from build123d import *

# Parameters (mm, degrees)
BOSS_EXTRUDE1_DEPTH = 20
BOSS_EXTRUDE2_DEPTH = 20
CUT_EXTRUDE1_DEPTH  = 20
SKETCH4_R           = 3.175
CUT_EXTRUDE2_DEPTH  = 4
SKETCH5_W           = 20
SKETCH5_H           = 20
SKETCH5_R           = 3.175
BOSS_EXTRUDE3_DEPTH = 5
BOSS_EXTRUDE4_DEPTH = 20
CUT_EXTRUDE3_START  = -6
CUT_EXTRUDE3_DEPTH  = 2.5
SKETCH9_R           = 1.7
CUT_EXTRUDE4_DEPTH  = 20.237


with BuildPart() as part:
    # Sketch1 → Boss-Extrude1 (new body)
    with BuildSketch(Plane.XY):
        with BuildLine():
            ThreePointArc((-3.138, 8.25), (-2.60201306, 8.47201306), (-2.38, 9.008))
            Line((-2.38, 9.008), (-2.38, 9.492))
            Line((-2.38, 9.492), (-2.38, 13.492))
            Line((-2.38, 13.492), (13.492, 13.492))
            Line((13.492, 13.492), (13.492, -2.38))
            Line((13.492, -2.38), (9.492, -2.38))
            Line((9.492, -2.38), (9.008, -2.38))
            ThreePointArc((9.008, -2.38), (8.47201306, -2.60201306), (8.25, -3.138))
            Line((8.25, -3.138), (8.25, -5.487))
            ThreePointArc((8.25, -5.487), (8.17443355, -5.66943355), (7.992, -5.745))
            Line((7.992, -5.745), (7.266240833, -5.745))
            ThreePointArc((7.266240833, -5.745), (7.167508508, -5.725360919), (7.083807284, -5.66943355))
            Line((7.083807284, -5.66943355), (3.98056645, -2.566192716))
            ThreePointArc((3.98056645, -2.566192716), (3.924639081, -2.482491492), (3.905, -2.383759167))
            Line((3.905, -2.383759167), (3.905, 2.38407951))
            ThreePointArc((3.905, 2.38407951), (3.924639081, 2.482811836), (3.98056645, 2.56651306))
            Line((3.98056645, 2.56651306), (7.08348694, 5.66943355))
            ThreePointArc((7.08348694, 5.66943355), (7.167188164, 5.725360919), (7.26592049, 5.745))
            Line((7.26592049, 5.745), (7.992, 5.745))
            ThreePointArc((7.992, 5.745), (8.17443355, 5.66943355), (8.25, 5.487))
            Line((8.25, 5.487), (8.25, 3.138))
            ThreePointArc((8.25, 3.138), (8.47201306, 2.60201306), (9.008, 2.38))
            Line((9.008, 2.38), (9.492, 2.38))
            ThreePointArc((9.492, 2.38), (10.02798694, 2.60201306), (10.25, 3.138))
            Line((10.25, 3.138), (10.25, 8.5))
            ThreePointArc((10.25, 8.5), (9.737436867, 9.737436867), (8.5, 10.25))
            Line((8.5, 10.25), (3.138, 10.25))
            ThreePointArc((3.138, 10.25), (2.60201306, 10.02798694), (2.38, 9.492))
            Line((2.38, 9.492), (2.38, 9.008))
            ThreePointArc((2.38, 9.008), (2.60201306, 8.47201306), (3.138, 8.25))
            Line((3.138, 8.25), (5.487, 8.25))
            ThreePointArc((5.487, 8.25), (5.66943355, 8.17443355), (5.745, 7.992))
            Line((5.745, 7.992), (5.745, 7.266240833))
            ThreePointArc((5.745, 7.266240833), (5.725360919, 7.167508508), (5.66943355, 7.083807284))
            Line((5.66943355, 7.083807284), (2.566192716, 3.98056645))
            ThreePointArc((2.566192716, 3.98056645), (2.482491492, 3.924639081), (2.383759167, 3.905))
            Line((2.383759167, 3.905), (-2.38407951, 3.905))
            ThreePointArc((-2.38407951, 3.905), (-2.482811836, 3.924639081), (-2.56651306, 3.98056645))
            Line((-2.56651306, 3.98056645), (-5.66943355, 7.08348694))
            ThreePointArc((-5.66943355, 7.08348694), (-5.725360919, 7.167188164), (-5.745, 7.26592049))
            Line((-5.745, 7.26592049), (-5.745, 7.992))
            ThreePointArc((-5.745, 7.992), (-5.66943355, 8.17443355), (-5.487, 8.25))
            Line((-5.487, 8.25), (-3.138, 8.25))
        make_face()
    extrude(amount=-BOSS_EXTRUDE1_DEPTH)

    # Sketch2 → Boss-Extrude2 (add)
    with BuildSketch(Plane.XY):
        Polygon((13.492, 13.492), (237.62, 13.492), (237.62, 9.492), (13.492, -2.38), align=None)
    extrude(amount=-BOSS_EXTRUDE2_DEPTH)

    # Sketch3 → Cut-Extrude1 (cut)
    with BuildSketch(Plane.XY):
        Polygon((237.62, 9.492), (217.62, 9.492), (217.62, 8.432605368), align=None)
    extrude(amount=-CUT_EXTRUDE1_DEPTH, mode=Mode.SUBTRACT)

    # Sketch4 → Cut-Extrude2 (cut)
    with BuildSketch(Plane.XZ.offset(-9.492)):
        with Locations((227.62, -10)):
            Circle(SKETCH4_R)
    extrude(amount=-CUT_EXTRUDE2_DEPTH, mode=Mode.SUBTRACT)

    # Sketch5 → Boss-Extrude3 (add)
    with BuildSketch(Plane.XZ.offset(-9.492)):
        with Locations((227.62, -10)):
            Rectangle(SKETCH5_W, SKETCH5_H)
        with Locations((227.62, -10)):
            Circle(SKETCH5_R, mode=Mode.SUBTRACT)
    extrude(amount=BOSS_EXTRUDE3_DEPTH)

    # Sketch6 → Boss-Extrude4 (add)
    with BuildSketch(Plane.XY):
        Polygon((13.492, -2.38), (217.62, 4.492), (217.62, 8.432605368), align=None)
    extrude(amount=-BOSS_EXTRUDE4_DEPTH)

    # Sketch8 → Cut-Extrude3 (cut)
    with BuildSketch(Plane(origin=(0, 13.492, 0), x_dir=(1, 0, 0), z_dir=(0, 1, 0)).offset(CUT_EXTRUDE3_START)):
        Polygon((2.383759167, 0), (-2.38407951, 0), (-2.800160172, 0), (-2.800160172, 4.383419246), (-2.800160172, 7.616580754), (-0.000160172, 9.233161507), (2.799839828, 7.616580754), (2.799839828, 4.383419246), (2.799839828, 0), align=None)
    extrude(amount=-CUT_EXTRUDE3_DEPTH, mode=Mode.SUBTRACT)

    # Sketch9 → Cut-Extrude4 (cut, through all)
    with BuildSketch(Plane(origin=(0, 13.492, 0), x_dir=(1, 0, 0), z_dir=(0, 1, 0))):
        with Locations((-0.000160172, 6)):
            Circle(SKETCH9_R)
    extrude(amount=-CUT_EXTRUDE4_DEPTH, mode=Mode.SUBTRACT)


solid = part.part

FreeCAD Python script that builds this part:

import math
import FreeCAD as App
import Part
import Sketcher
Q = App.Units.Quantity


def add_polygon(sketch, points):
    """Adds a closed chain of lines whose ends are joined by coincident constraints."""
    first, n = sketch.GeometryCount, len(points)
    for a, b in zip(points, points[1:] + points[:1]):
        sketch.addGeometry(Part.LineSegment(App.Vector(*a, 0), App.Vector(*b, 0)), False)
    for i in range(n):
        sketch.addConstraint(Sketcher.Constraint("Coincident", first + i, 2, first + (i + 1) % n, 1))

doc = App.newDocument("Part")
params = doc.addObject("Spreadsheet::Sheet", "Params")
for row, (alias, value) in enumerate([
    ("sketch1_radius", "1.75 mm"),
    ("pad1_length", "20 mm"),
    ("sketch2_height", "4 mm"),
    ("pad2_length", "20 mm"),
    ("sketch3_width", "20 mm"),
    ("pocket1_length", "20 mm"),
    ("sketch4_diameter", "6.35 mm"),
    ("pocket2_length", "4 mm"),
    ("sketch5_diameter", "6.35 mm"),
    ("sketch5_width", "20 mm"),
    ("pad3_length", "5 mm"),
    ("pad4_length", "20 mm"),
    ("sketch7_width", "5.6 mm"),
    ("pocket3_length", "2.5 mm"),
    ("sketch8_diameter", "3.4 mm"),
], start=1):
    params.set(f"A{row}", alias)
    params.set(f"B{row}", "=" + value)
    params.setAlias(f"B{row}", alias)

body = doc.addObject("PartDesign::Body", "Body")

sketch1 = body.newObject("Sketcher::SketchObject", "Sketch")
sketch1.AttachmentSupport = (doc.getObject("XY_Plane"), [""])
sketch1.MapMode = "FlatFace"
sketch1.addGeometry(Part.ArcOfCircle(Part.Circle(App.Vector(-3.138, 9.008, 0), App.Vector(0, 0, 1), 0.758), math.radians(-90), math.radians(0)), False)
sketch1.addGeometry(Part.LineSegment(App.Vector(-3.138, 8.25, 0), App.Vector(-5.487, 8.25, 0)), False)
sketch1.addGeometry(Part.ArcOfCircle(Part.Circle(App.Vector(-5.487, 7.992, 0), App.Vector(0, 0, 1), 0.258), math.radians(90), math.radians(180)), False)
sketch1.addGeometry(Part.LineSegment(App.Vector(-5.745, 7.992, 0), App.Vector(-5.745, 7.26592, 0)), False)
sketch1.addGeometry(Part.ArcOfCircle(Part.Circle(App.Vector(-5.487, 7.26592, 0), App.Vector(0, 0, 1), 0.258), math.radians(-180), math.radians(-135.000001)), False)
sketch1.addGeometry(Part.LineSegment(App.Vector(-5.669434, 7.083487, 0), App.Vector(-2.566513, 3.980566, 0)), False)
sketch1.addGeometry(Part.ArcOfCircle(Part.Circle(App.Vector(-2.38408, 4.163, 0), App.Vector(0, 0, 1), 0.258), math.radians(-134.999999), math.radians(-90)), False)
sketch1.addGeometry(Part.LineSegment(App.Vector(-2.38408, 3.905, 0), App.Vector(2.383759, 3.905, 0)), False)
sketch1.addGeometry(Part.ArcOfCircle(Part.Circle(App.Vector(2.383759, 4.163, 0), App.Vector(0, 0, 1), 0.258), math.radians(-89.999999), math.radians(-45.000001)), False)
sketch1.addGeometry(Part.LineSegment(App.Vector(2.566193, 3.980566, 0), App.Vector(5.669434, 7.083807, 0)), False)
sketch1.addGeometry(Part.ArcOfCircle(Part.Circle(App.Vector(5.487, 7.266241, 0), App.Vector(0, 0, 1), 0.258), math.radians(-44.999999), math.radians(-0.000001)), False)
sketch1.addGeometry(Part.LineSegment(App.Vector(5.745, 7.266241, 0), App.Vector(5.745, 7.992, 0)), False)
sketch1.addGeometry(Part.ArcOfCircle(Part.Circle(App.Vector(5.487, 7.992, 0), App.Vector(0, 0, 1), 0.258), math.radians(0), math.radians(90)), False)
sketch1.addGeometry(Part.LineSegment(App.Vector(5.487, 8.25, 0), App.Vector(3.138, 8.25, 0)), False)
sketch1.addGeometry(Part.ArcOfCircle(Part.Circle(App.Vector(3.138, 9.008, 0), App.Vector(0, 0, 1), 0.758), math.radians(180), math.radians(270)), False)
sketch1.addGeometry(Part.LineSegment(App.Vector(2.38, 9.008, 0), App.Vector(2.38, 9.492, 0)), False)
sketch1.addGeometry(Part.ArcOfCircle(Part.Circle(App.Vector(3.138, 9.492, 0), App.Vector(0, 0, 1), 0.758), math.radians(90), math.radians(180)), False)
sketch1.addGeometry(Part.LineSegment(App.Vector(3.138, 10.25, 0), App.Vector(8.5, 10.25, 0)), False)
sketch1.addGeometry(Part.ArcOfCircle(Part.Circle(App.Vector(8.5, 8.5, 0), App.Vector(0, 0, 1), 1.75), math.radians(0), math.radians(90)), False)
sketch1.addGeometry(Part.LineSegment(App.Vector(10.25, 8.5, 0), App.Vector(10.25, 3.138, 0)), False)
sketch1.addGeometry(Part.ArcOfCircle(Part.Circle(App.Vector(9.492, 3.138, 0), App.Vector(0, 0, 1), 0.758), math.radians(-90), math.radians(0)), False)
sketch1.addGeometry(Part.LineSegment(App.Vector(9.492, 2.38, 0), App.Vector(9.008, 2.38, 0)), False)
sketch1.addGeometry(Part.ArcOfCircle(Part.Circle(App.Vector(9.008, 3.138, 0), App.Vector(0, 0, 1), 0.758), math.radians(180), math.radians(270)), False)
sketch1.addGeometry(Part.LineSegment(App.Vector(8.25, 3.138, 0), App.Vector(8.25, 5.487, 0)), False)
sketch1.addGeometry(Part.ArcOfCircle(Part.Circle(App.Vector(7.992, 5.487, 0), App.Vector(0, 0, 1), 0.258), math.radians(0), math.radians(90)), False)
sketch1.addGeometry(Part.LineSegment(App.Vector(7.992, 5.745, 0), App.Vector(7.26592, 5.745, 0)), False)
sketch1.addGeometry(Part.ArcOfCircle(Part.Circle(App.Vector(7.26592, 5.487, 0), App.Vector(0, 0, 1), 0.258), math.radians(90), math.radians(134.999999)), False)
sketch1.addGeometry(Part.LineSegment(App.Vector(7.083487, 5.669434, 0), App.Vector(3.980566, 2.566513, 0)), False)
sketch1.addGeometry(Part.ArcOfCircle(Part.Circle(App.Vector(4.163, 2.38408, 0), App.Vector(0, 0, 1), 0.258), math.radians(135.000001), math.radians(180)), False)
sketch1.addGeometry(Part.LineSegment(App.Vector(3.905, 2.38408, 0), App.Vector(3.905, -2.383759, 0)), False)
sketch1.addGeometry(Part.ArcOfCircle(Part.Circle(App.Vector(4.163, -2.383759, 0), App.Vector(0, 0, 1), 0.258), math.radians(-179.999999), math.radians(-135.000001)), False)
sketch1.addGeometry(Part.LineSegment(App.Vector(3.980566, -2.566193, 0), App.Vector(7.083807, -5.669434, 0)), False)
sketch1.addGeometry(Part.ArcOfCircle(Part.Circle(App.Vector(7.266241, -5.487, 0), App.Vector(0, 0, 1), 0.258), math.radians(-134.999999), math.radians(-90.000001)), False)
sketch1.addGeometry(Part.LineSegment(App.Vector(7.266241, -5.745, 0), App.Vector(7.992, -5.745, 0)), False)
sketch1.addGeometry(Part.ArcOfCircle(Part.Circle(App.Vector(7.992, -5.487, 0), App.Vector(0, 0, 1), 0.258), math.radians(-90), math.radians(0)), False)
sketch1.addGeometry(Part.LineSegment(App.Vector(8.25, -5.487, 0), App.Vector(8.25, -3.138, 0)), False)
sketch1.addGeometry(Part.ArcOfCircle(Part.Circle(App.Vector(9.008, -3.138, 0), App.Vector(0, 0, 1), 0.758), math.radians(90), math.radians(180)), False)
sketch1.addGeometry(Part.LineSegment(App.Vector(9.008, -2.38, 0), App.Vector(13.492, -2.38, 0)), False)
sketch1.addGeometry(Part.LineSegment(App.Vector(13.492, -2.38, 0), App.Vector(13.492, 13.492, 0)), False)
sketch1.addGeometry(Part.LineSegment(App.Vector(13.492, 13.492, 0), App.Vector(-2.38, 13.492, 0)), False)
sketch1.addGeometry(Part.LineSegment(App.Vector(-2.38, 13.492, 0), App.Vector(-2.38, 9.008, 0)), False)
sketch1.addConstraint(Sketcher.Constraint("Tangent", 0, 1, 1, 1))
sketch1.addConstraint(Sketcher.Constraint("Tangent", 1, 2, 2, 1))
sketch1.addConstraint(Sketcher.Constraint("Tangent", 2, 2, 3, 1))
sketch1.addConstraint(Sketcher.Constraint("Tangent", 3, 2, 4, 1))
sketch1.addConstraint(Sketcher.Constraint("Tangent", 4, 2, 5, 1))
sketch1.addConstraint(Sketcher.Constraint("Tangent", 5, 2, 6, 1))
sketch1.addConstraint(Sketcher.Constraint("Tangent", 6, 2, 7, 1))
sketch1.addConstraint(Sketcher.Constraint("Tangent", 7, 2, 8, 1))
sketch1.addConstraint(Sketcher.Constraint("Tangent", 8, 2, 9, 1))
sketch1.addConstraint(Sketcher.Constraint("Tangent", 9, 2, 10, 1))
sketch1.addConstraint(Sketcher.Constraint("Tangent", 10, 2, 11, 1))
sketch1.addConstraint(Sketcher.Constraint("Tangent", 11, 2, 12, 1))
sketch1.addConstraint(Sketcher.Constraint("Tangent", 12, 2, 13, 1))
sketch1.addConstraint(Sketcher.Constraint("Tangent", 13, 2, 14, 2))
sketch1.addConstraint(Sketcher.Constraint("Tangent", 14, 1, 15, 1))
sketch1.addConstraint(Sketcher.Constraint("Tangent", 15, 2, 16, 2))
sketch1.addConstraint(Sketcher.Constraint("Tangent", 16, 1, 17, 1))
sketch1.addConstraint(Sketcher.Constraint("Tangent", 17, 2, 18, 2))
sketch1.addConstraint(Sketcher.Constraint("Tangent", 18, 1, 19, 1))
sketch1.addConstraint(Sketcher.Constraint("Tangent", 19, 2, 20, 2))
sketch1.addConstraint(Sketcher.Constraint("Tangent", 20, 1, 21, 1))
sketch1.addConstraint(Sketcher.Constraint("Tangent", 21, 2, 22, 2))
sketch1.addConstraint(Sketcher.Constraint("Tangent", 22, 1, 23, 1))
sketch1.addConstraint(Sketcher.Constraint("Tangent", 23, 2, 24, 1))
sketch1.addConstraint(Sketcher.Constraint("Tangent", 24, 2, 25, 1))
sketch1.addConstraint(Sketcher.Constraint("Tangent", 25, 2, 26, 1))
sketch1.addConstraint(Sketcher.Constraint("Tangent", 26, 2, 27, 1))
sketch1.addConstraint(Sketcher.Constraint("Tangent", 27, 2, 28, 1))
sketch1.addConstraint(Sketcher.Constraint("Tangent", 28, 2, 29, 1))
sketch1.addConstraint(Sketcher.Constraint("Tangent", 29, 2, 30, 1))
sketch1.addConstraint(Sketcher.Constraint("Tangent", 30, 2, 31, 1))
sketch1.addConstraint(Sketcher.Constraint("Tangent", 31, 2, 32, 1))
sketch1.addConstraint(Sketcher.Constraint("Tangent", 32, 2, 33, 1))
sketch1.addConstraint(Sketcher.Constraint("Tangent", 33, 2, 34, 1))
sketch1.addConstraint(Sketcher.Constraint("Tangent", 34, 2, 35, 1))
sketch1.addConstraint(Sketcher.Constraint("Tangent", 35, 2, 36, 2))
sketch1.addConstraint(Sketcher.Constraint("Tangent", 36, 1, 37, 1))
sketch1.addConstraint(Sketcher.Constraint("Coincident", 37, 2, 38, 1))
sketch1.addConstraint(Sketcher.Constraint("Coincident", 38, 2, 39, 1))
sketch1.addConstraint(Sketcher.Constraint("Coincident", 39, 2, 40, 1))
sketch1.addConstraint(Sketcher.Constraint("Tangent", 40, 2, 0, 2))
sketch1.addConstraint(Sketcher.Constraint("Horizontal", 1))
sketch1.addConstraint(Sketcher.Constraint("Vertical", 3))
sketch1.addConstraint(Sketcher.Constraint("Horizontal", 7))
sketch1.addConstraint(Sketcher.Constraint("Vertical", 11))
sketch1.addConstraint(Sketcher.Constraint("Horizontal", 13))
sketch1.addConstraint(Sketcher.Constraint("Vertical", 15))
sketch1.addConstraint(Sketcher.Constraint("Horizontal", 17))
sketch1.addConstraint(Sketcher.Constraint("Vertical", 19))
sketch1.addConstraint(Sketcher.Constraint("Horizontal", 21))
sketch1.addConstraint(Sketcher.Constraint("Vertical", 23))
sketch1.addConstraint(Sketcher.Constraint("Horizontal", 25))
sketch1.addConstraint(Sketcher.Constraint("Vertical", 29))
sketch1.addConstraint(Sketcher.Constraint("Horizontal", 33))
sketch1.addConstraint(Sketcher.Constraint("Vertical", 35))
sketch1.addConstraint(Sketcher.Constraint("Horizontal", 37))
sketch1.addConstraint(Sketcher.Constraint("Vertical", 38))
sketch1.addConstraint(Sketcher.Constraint("Horizontal", 39))
sketch1.addConstraint(Sketcher.Constraint("Vertical", 40))
sketch1.addConstraint(Sketcher.Constraint("Equal", 2, 4))
sketch1.addConstraint(Sketcher.Constraint("Equal", 4, 6))
sketch1.addConstraint(Sketcher.Constraint("Equal", 6, 8))
sketch1.addConstraint(Sketcher.Constraint("Equal", 8, 10))
sketch1.addConstraint(Sketcher.Constraint("Equal", 10, 12))
sketch1.addConstraint(Sketcher.Constraint("Equal", 0, 14))
sketch1.addConstraint(Sketcher.Constraint("Equal", 14, 16))
sketch1.addConstraint(Sketcher.Constraint("Equal", 16, 20))
sketch1.addConstraint(Sketcher.Constraint("Equal", 20, 22))
sketch1.addConstraint(Sketcher.Constraint("Equal", 12, 24))
sketch1.addConstraint(Sketcher.Constraint("Equal", 24, 26))
sketch1.addConstraint(Sketcher.Constraint("Equal", 26, 28))
sketch1.addConstraint(Sketcher.Constraint("Equal", 28, 30))
sketch1.addConstraint(Sketcher.Constraint("Equal", 30, 32))
sketch1.addConstraint(Sketcher.Constraint("Equal", 32, 34))
sketch1.addConstraint(Sketcher.Constraint("Equal", 22, 36))
sketch1.addConstraint(Sketcher.Constraint("Symmetric", 2, 3, 12, 3, -2))
sketch1.addConstraint(Sketcher.Constraint("Symmetric", 24, 3, 34, 3, -1))
sketch1.addConstraint(Sketcher.Constraint("Perpendicular", 5, 9))
sketch1.addConstraint(Sketcher.Constraint("Parallel", 9, 27))
sketch1.addConstraint(Sketcher.Constraint("Perpendicular", 27, 31))
sketch1.addConstraint(Sketcher.Constraint("Horizontal", 5, 2, 8, 2))
sketch1.addConstraint(Sketcher.Constraint("Equal", 1, 13))
sketch1.addConstraint(Sketcher.Constraint("Equal", 25, 3))
sketch1.addConstraint(Sketcher.Constraint("Equal", 33, 11))
sketch1.addConstraint(Sketcher.Constraint("Equal", 21, 15))
sketch1.addConstraint(Sketcher.Constraint("Equal", 17, 19))
sketch1.addConstraint(Sketcher.Constraint("Equal", 13, 23))
sketch1.addConstraint(Sketcher.Constraint("Equal", 7, 29))
sketch1.addConstraint(Sketcher.Constraint("Equal", 23, 35))
sketch1.addConstraint(Sketcher.Constraint("Equal", 39, 38))
sketch1.addConstraint(Sketcher.Constraint("Equal", 37, 40))
sketch1.addConstraint(Sketcher.Constraint("Radius", 18, 1.75))
sketch1.addConstraint(Sketcher.Constraint("Radius", 0, 0.758))
sketch1.addConstraint(Sketcher.Constraint("Radius", 2, 0.258))
sketch1.addConstraint(Sketcher.Constraint("DistanceY", 13, 2, 16, 1, 2.0))
sketch1.addConstraint(Sketcher.Constraint("DistanceX", 20, 1, 37, 2, 4.0))
sketch1.addConstraint(Sketcher.Constraint("DistanceX", -1, 1, 18, 3, 8.5))
sketch1.addConstraint(Sketcher.Constraint("DistanceX", 1, 2, 1, 1, 2.349))
sketch1.addConstraint(Sketcher.Constraint("DistanceX", 17, 1, 17, 2, 5.362))
sketch1.addConstraint(Sketcher.Constraint("DistanceY", 32, 3, 8, 3, 9.65))
sketch1.addConstraint(Sketcher.Constraint("DistanceX", 7, 1, 7, 2, 4.767839))
sketch1.addConstraint(Sketcher.Constraint("DistanceX", 25, 2, 25, 1, 0.72608))
sketch1.setExpression("Constraints[91]", "Params.sketch1_radius")
pad1 = body.newObject("PartDesign::Pad", "Pad")
pad1.Profile = sketch1
pad1.setExpression("Length", "Params.pad1_length")
pad1.Reversed = True

sketch2 = body.newObject("Sketcher::SketchObject", "Sketch001")
sketch2.AttachmentSupport = (doc.getObject("XY_Plane"), [""])
sketch2.MapMode = "FlatFace"
add_polygon(sketch2, [(237.62, 13.492), (13.492, 13.492), (13.492, -2.38), (237.62, 9.492)])
sketch2.addConstraint(Sketcher.Constraint("Horizontal", 0))
sketch2.addConstraint(Sketcher.Constraint("Vertical", 1))
sketch2.addConstraint(Sketcher.Constraint("Vertical", 3))
sketch2.addConstraint(Sketcher.Constraint("DistanceY", 3, 1, 3, 2, 4.0))
sketch2.addConstraint(Sketcher.Constraint("DistanceX", 0, 2, 0, 1, 224.128))
sketch2.addConstraint(Sketcher.Constraint("DistanceY", 1, 2, 1, 1, 15.872))
sketch2.addConstraint(Sketcher.Constraint("DistanceY", 1, 2, -1, 1, 2.38))
sketch2.addConstraint(Sketcher.Constraint("DistanceX", -1, 1, 2, 2, 237.62))
sketch2.setExpression("Constraints[7]", "Params.sketch2_height")
pad2 = body.newObject("PartDesign::Pad", "Pad001")
pad2.Profile = sketch2
pad2.setExpression("Length", "Params.pad2_length")
pad2.Reversed = True

sketch3 = body.newObject("Sketcher::SketchObject", "Sketch002")
sketch3.AttachmentSupport = (doc.getObject("XY_Plane"), [""])
sketch3.MapMode = "FlatFace"
add_polygon(sketch3, [(237.62, 9.492), (217.62, 9.492), (217.62, 8.432605)])
sketch3.addConstraint(Sketcher.Constraint("Horizontal", 0))
sketch3.addConstraint(Sketcher.Constraint("Vertical", 1))
sketch3.addConstraint(Sketcher.Constraint("DistanceX", 0, 2, 0, 1, 20.0))
sketch3.addConstraint(Sketcher.Constraint("DistanceX", -1, 1, 0, 2, 217.62))
sketch3.addConstraint(Sketcher.Constraint("DistanceY", -1, 1, 0, 2, 9.492))
sketch3.addConstraint(Sketcher.Constraint("Distance", 2, 20.028038))
sketch3.setExpression("Constraints[5]", "Params.sketch3_width")
pocket1 = body.newObject("PartDesign::Pocket", "Pocket")
pocket1.Profile = sketch3
pocket1.setExpression("Length", "Params.pocket1_length")

sketch4 = body.newObject("Sketcher::SketchObject", "Sketch003")
sketch4.AttachmentSupport = (doc.getObject("XZ_Plane"), [""])
sketch4.MapMode = "FlatFace"
sketch4.AttachmentOffset = App.Placement(App.Vector(0, 0, -9.492), App.Rotation())
sketch4.addGeometry(Part.Circle(App.Vector(227.62, -10, 0), App.Vector(0, 0, 1), 3.175), False)
sketch4.addConstraint(Sketcher.Constraint("Diameter", 0, 6.35))
sketch4.addConstraint(Sketcher.Constraint("DistanceY", 0, 3, -1, 1, 10.0))
sketch4.addConstraint(Sketcher.Constraint("DistanceX", -1, 1, 0, 3, 227.62))
sketch4.setExpression("Constraints[0]", "Params.sketch4_diameter")
pocket2 = body.newObject("PartDesign::Pocket", "Pocket001")
pocket2.Profile = sketch4
pocket2.setExpression("Length", "Params.pocket2_length")

sketch5 = body.newObject("Sketcher::SketchObject", "Sketch004")
sketch5.AttachmentSupport = (doc.getObject("XZ_Plane"), [""])
sketch5.MapMode = "FlatFace"
sketch5.AttachmentOffset = App.Placement(App.Vector(0, 0, -9.492), App.Rotation())
add_polygon(sketch5, [(217.62, 0), (217.62, -20), (237.62, -20), (237.62, 0)])
sketch5.addGeometry(Part.Circle(App.Vector(227.62, -10, 0), App.Vector(0, 0, 1), 3.175), False)
sketch5.addConstraint(Sketcher.Constraint("Vertical", 0))
sketch5.addConstraint(Sketcher.Constraint("Horizontal", 1))
sketch5.addConstraint(Sketcher.Constraint("Vertical", 2))
sketch5.addConstraint(Sketcher.Constraint("Horizontal", 3))
sketch5.addConstraint(Sketcher.Constraint("PointOnObject", 2, 2, -1))
sketch5.addConstraint(Sketcher.Constraint("Equal", 3, 0))
sketch5.addConstraint(Sketcher.Constraint("Diameter", 4, 6.35))
sketch5.addConstraint(Sketcher.Constraint("DistanceX", 1, 1, 1, 2, 20.0))
sketch5.addConstraint(Sketcher.Constraint("DistanceY", 4, 3, -1, 1, 10.0))
sketch5.addConstraint(Sketcher.Constraint("DistanceX", 0, 2, 4, 3, 10.0))
sketch5.addConstraint(Sketcher.Constraint("DistanceX", -1, 1, 4, 3, 227.62))
sketch5.setExpression("Constraints[10]", "Params.sketch5_diameter")
sketch5.setExpression("Constraints[11]", "Params.sketch5_width")
pad3 = body.newObject("PartDesign::Pad", "Pad002")
pad3.Profile = sketch5
pad3.setExpression("Length", "Params.pad3_length")

sketch6 = body.newObject("Sketcher::SketchObject", "Sketch005")
sketch6.AttachmentSupport = (doc.getObject("XY_Plane"), [""])
sketch6.MapMode = "FlatFace"
add_polygon(sketch6, [(13.492, -2.38), (217.62, 4.492), (217.62, 8.432605)])
sketch6.addConstraint(Sketcher.Constraint("Vertical", 1))
sketch6.addConstraint(Sketcher.Constraint("DistanceX", -1, 1, 0, 2, 217.62))
sketch6.addConstraint(Sketcher.Constraint("DistanceY", 2, 2, -1, 1, 2.38))
sketch6.addConstraint(Sketcher.Constraint("DistanceY", -1, 1, 0, 2, 4.492))
sketch6.addConstraint(Sketcher.Constraint("DistanceX", -1, 1, 2, 2, 13.492))
sketch6.addConstraint(Sketcher.Constraint("Distance", 2, 204.41417))
pad4 = body.newObject("PartDesign::Pad", "Pad003")
pad4.Profile = sketch6
pad4.setExpression("Length", "Params.pad4_length")
pad4.Reversed = True

sketch7 = body.newObject("Sketcher::SketchObject", "Sketch006")
sketch7.AttachmentSupport = (doc.getObject("XZ_Plane"), [""])
sketch7.MapMode = "FlatFace"
sketch7.AttachmentOffset = App.Placement(App.Vector(0, 0, -7.492), App.Rotation())
add_polygon(sketch7, [(-2.80016, 0), (2.79984, 0), (2.79984, -7.616581), (-0.00016, -9.233162), (-2.80016, -7.616581)])
sketch7.addConstraint(Sketcher.Constraint("Horizontal", 0))
sketch7.addConstraint(Sketcher.Constraint("Vertical", 1))
sketch7.addConstraint(Sketcher.Constraint("Vertical", 4))
sketch7.addConstraint(Sketcher.Constraint("PointOnObject", 0, 2, -1))
sketch7.addConstraint(Sketcher.Constraint("Horizontal", 1, 2, 3, 2))
sketch7.addConstraint(Sketcher.Constraint("Equal", 2, 3))
sketch7.addConstraint(Sketcher.Constraint("Angle", 2, Q("-150 deg")))
sketch7.addConstraint(Sketcher.Constraint("DistanceX", 0, 1, 0, 2, 5.6))
sketch7.addConstraint(Sketcher.Constraint("DistanceY", 1, 2, 1, 1, 7.616581))
sketch7.addConstraint(Sketcher.Constraint("DistanceX", -1, 1, 0, 2, 2.79984))
sketch7.setExpression("Constraints[12]", "Params.sketch7_width")
pocket3 = body.newObject("PartDesign::Pocket", "Pocket002")
pocket3.Profile = sketch7
pocket3.setExpression("Length", "Params.pocket3_length")
pocket3.Reversed = True

sketch8 = body.newObject("Sketcher::SketchObject", "Sketch007")
sketch8.AttachmentSupport = (doc.getObject("XZ_Plane"), [""])
sketch8.MapMode = "FlatFace"
sketch8.AttachmentOffset = App.Placement(App.Vector(0, 0, -13.492), App.Rotation())
sketch8.addGeometry(Part.Circle(App.Vector(-0.00016, -6, 0), App.Vector(0, 0, 1), 1.7), False)
sketch8.addConstraint(Sketcher.Constraint("Diameter", 0, 3.4))
sketch8.addConstraint(Sketcher.Constraint("DistanceY", 0, 3, -1, 1, 6.0))
sketch8.addConstraint(Sketcher.Constraint("DistanceX", 0, 3, -1, 1, 0.00016))
sketch8.setExpression("Constraints[0]", "Params.sketch8_diameter")
pocket4 = body.newObject("PartDesign::Pocket", "Pocket003")
pocket4.Profile = sketch8
pocket4.Type = "ThroughAll"
pocket4.Reversed = True

doc.recompute()
